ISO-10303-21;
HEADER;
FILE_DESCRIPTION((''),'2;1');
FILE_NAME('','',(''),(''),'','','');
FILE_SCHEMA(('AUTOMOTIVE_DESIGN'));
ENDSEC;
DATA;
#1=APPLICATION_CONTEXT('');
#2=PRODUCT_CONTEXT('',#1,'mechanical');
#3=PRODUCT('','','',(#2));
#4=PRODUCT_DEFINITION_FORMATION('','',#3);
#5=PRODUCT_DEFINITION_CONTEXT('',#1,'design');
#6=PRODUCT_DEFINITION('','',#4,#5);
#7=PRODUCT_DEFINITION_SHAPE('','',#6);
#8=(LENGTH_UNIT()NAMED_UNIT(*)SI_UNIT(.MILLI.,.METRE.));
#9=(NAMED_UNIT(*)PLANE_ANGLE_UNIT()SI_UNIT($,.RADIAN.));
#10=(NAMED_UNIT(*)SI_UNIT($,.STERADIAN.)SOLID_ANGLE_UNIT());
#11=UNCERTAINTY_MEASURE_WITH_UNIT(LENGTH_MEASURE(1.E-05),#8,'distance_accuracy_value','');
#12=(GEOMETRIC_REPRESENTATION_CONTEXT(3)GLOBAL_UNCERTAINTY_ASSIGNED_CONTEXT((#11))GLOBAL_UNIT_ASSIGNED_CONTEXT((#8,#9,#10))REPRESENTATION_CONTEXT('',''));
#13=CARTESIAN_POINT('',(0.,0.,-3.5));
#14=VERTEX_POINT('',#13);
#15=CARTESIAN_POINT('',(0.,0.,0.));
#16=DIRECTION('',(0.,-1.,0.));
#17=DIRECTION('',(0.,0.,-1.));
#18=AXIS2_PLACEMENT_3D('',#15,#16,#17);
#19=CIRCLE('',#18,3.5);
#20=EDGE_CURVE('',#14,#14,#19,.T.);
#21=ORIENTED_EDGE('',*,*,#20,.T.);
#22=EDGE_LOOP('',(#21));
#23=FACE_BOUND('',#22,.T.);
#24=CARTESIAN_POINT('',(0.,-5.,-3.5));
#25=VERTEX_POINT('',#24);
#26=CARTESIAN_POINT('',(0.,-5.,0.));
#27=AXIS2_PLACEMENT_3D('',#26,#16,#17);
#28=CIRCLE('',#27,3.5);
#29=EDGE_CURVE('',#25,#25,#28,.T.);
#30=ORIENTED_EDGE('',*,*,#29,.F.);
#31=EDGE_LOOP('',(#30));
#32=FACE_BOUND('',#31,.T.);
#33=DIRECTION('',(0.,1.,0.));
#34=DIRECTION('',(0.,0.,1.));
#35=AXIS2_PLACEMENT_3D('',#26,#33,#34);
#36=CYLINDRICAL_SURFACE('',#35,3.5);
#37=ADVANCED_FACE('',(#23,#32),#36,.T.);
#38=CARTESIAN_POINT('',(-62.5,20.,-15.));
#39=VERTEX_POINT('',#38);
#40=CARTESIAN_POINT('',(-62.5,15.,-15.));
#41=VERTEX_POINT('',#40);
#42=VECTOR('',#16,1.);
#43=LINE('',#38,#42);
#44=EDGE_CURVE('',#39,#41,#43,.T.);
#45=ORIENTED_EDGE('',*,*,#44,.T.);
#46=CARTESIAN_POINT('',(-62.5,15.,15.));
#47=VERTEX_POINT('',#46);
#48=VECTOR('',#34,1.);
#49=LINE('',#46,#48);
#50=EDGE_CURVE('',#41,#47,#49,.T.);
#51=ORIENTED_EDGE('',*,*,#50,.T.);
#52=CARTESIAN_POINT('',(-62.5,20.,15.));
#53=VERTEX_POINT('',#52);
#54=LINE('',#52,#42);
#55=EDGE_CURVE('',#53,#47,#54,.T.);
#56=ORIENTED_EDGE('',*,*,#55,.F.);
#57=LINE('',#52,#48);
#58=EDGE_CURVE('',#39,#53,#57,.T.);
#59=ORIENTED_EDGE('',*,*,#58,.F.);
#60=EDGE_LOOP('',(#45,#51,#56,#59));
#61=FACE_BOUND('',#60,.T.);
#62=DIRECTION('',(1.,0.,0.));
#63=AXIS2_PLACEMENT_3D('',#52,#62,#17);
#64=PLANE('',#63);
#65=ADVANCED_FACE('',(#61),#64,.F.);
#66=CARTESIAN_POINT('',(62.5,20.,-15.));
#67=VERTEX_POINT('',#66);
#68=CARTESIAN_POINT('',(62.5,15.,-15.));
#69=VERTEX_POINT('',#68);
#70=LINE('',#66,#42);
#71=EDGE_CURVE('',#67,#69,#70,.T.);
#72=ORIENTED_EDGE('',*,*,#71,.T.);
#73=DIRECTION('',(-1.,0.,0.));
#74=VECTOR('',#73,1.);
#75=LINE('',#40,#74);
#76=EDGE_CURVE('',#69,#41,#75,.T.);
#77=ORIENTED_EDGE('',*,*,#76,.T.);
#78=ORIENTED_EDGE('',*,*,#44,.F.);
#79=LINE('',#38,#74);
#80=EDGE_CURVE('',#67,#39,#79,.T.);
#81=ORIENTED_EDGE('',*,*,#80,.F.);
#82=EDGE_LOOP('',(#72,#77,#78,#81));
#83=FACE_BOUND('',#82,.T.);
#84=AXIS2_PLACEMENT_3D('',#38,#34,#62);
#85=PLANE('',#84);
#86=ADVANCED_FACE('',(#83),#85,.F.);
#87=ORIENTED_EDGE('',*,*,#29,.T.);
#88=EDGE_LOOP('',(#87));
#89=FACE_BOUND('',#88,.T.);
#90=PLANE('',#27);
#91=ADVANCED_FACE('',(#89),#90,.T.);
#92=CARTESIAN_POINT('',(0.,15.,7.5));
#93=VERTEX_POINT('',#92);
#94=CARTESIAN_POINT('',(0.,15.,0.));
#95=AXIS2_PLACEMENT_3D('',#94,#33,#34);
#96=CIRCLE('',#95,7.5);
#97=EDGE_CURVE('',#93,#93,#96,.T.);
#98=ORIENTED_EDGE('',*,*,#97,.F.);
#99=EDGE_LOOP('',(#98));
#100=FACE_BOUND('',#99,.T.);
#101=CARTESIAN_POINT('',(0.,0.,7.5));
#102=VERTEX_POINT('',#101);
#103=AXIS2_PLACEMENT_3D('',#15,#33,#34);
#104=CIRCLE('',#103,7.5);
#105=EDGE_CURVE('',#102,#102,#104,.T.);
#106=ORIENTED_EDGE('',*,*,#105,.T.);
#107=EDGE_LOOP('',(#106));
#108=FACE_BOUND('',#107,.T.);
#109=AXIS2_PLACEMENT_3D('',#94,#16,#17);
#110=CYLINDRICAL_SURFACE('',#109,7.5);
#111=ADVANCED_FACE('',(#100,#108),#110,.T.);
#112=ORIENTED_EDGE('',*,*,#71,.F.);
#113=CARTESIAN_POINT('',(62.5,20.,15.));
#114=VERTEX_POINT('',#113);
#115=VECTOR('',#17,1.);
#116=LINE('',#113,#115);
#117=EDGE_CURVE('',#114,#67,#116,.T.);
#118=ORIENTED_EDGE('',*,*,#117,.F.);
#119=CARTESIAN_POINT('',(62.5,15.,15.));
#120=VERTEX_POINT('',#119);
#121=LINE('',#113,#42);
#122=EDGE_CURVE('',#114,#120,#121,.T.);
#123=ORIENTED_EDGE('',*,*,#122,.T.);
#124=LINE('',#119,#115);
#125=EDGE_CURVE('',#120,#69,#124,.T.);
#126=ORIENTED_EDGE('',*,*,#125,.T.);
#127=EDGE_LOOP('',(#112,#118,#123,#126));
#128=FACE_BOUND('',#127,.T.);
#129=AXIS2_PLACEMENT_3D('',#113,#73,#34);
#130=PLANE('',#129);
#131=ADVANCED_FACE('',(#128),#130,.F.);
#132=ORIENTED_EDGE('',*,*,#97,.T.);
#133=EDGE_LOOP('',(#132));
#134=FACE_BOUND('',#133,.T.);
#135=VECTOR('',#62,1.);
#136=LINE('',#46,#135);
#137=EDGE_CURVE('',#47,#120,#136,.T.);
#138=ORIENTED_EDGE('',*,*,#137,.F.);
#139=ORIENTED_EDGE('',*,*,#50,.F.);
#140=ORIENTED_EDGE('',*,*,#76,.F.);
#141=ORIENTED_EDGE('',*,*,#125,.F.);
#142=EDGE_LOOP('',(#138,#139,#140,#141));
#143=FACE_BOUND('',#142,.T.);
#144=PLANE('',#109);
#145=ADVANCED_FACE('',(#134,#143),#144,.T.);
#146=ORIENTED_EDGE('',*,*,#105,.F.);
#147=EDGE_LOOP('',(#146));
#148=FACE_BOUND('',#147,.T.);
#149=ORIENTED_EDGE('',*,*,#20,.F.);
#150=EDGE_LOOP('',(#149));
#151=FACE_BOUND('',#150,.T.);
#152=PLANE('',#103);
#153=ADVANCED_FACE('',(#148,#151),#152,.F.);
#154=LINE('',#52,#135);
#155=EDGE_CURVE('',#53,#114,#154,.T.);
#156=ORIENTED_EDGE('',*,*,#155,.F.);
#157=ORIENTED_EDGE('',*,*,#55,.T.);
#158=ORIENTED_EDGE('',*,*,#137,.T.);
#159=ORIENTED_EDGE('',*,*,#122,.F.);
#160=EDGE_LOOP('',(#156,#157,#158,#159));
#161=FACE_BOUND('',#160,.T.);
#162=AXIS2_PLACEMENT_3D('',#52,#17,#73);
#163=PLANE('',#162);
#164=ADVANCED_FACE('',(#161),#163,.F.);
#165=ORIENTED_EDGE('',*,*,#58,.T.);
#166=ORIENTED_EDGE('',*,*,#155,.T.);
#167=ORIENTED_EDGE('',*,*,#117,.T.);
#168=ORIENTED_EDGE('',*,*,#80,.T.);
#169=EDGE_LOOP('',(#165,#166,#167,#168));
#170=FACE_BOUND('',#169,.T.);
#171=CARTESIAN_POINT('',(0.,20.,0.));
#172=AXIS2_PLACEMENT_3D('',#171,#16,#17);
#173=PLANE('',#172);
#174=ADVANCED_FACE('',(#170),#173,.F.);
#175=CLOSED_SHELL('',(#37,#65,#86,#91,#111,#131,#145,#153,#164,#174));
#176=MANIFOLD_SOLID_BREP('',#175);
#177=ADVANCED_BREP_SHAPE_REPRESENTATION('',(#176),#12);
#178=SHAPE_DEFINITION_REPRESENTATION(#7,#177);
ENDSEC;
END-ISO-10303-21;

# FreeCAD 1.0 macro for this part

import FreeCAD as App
import Part
import Sketcher

V = App.Vector
Q = App.Units.Quantity


def add_polygon(sketch, points):
    """Adds a closed chain of lines whose ends are joined by coincident constraints."""
    first, n = sketch.GeometryCount, len(points)
    for a, b in zip(points, points[1:] + points[:1]):
        sketch.addGeometry(Part.LineSegment(App.Vector(*a, 0), App.Vector(*b, 0)), False)
    for i in range(n):
        sketch.addConstraint(Sketcher.Constraint("Coincident", first + i, 2, first + (i + 1) % n, 1))

doc = App.newDocument("Part")
body = doc.addObject("PartDesign::Body", "Body")

# Sketch on XZ plane
sketch1 = body.newObject("Sketcher::SketchObject", "Sketch")
sketch1.AttachmentSupport = (doc.getObject("XZ_Plane"), [""])
sketch1.MapMode = "FlatFace"
sketch1.addGeometry(Part.Circle(V(0, 0, 0), V(0, 0, 1), 8), False)
sketch1.addConstraint([
    Sketcher.Constraint("Coincident", 0, 3, -1, 1),
    Sketcher.Constraint("Diameter", 0, Q("15 mm")),
])
pad1 = body.newObject("PartDesign::Pad", "Pad")
pad1.Profile = sketch1
pad1.Length = 15
pad1.Reversed = True

# Sketch on XZ plane
sketch2 = body.newObject("Sketcher::SketchObject", "Sketch001")
sketch2.AttachmentSupport = (doc.getObject("XZ_Plane"), [""])
sketch2.MapMode = "FlatFace"
sketch2.AttachmentOffset = App.Placement(V(0, 0, -15), App.Rotation())
add_polygon(sketch2, [(-62, -15), (-62, 15), (62, 15), (62, -15)])  # lines 0-3
sketch2.addConstraint([
    Sketcher.Constraint("Vertical", 0),
    Sketcher.Constraint("Horizontal", 1),
    Sketcher.Constraint("Vertical", 2),
    Sketcher.Constraint("Horizontal", 3),
    Sketcher.Constraint("Symmetric", 0, 2, 2, 2, -1, 1),
    Sketcher.Constraint("DistanceX", 1, 1, 1, 2, Q("125 mm")),
    Sketcher.Constraint("DistanceY", 0, 1, 0, 2, Q("30 mm")),
])
pad2 = body.newObject("PartDesign::Pad", "Pad001")
pad2.Profile = sketch2
pad2.Length = 5
pad2.Reversed = True

# Sketch on XZ plane
sketch3 = body.newObject("Sketcher::SketchObject", "Sketch002")
sketch3.AttachmentSupport = (doc.getObject("XZ_Plane"), [""])
sketch3.MapMode = "FlatFace"
sketch3.addGeometry(Part.Circle(V(0, 0, 0), V(0, 0, 1), 3.5), False)
sketch3.addConstraint([
    Sketcher.Constraint("Coincident", 0, 3, -1, 1),
    Sketcher.Constraint("Diameter", 0, Q("7 mm")),
])
pad3 = body.newObject("PartDesign::Pad", "Pad002")
pad3.Profile = sketch3
pad3.Length = 5

doc.recompute()
